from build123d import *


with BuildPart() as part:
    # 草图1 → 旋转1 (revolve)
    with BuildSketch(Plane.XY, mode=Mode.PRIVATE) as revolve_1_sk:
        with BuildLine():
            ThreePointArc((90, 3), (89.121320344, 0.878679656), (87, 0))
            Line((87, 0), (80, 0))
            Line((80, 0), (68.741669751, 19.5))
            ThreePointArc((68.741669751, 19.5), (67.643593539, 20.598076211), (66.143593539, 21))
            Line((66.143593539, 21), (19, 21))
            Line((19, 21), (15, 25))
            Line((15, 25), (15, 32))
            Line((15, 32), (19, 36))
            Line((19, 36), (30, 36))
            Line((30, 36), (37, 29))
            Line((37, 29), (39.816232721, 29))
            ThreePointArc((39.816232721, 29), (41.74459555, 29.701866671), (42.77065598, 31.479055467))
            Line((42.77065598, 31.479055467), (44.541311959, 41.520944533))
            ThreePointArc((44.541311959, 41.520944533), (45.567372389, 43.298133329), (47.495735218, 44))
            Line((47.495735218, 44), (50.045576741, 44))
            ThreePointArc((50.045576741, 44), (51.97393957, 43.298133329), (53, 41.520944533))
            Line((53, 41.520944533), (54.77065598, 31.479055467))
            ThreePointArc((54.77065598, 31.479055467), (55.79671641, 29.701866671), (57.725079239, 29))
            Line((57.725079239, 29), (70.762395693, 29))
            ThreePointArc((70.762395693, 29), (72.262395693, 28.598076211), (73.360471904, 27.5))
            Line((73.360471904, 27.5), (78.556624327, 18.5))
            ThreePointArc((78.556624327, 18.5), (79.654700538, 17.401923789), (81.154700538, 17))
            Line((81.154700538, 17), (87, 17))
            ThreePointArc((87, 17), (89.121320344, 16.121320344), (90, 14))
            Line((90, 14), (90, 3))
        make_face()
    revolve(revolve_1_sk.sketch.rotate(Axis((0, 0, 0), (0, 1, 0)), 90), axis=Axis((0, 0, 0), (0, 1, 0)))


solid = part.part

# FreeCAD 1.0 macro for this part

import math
import FreeCAD as App
import Part
import Sketcher
from FreeCAD import Vector
Q = App.Units.Quantity

doc = App.newDocument("Part")
params = doc.addObject("Spreadsheet::Sheet", "Params")
for row, (alias, value) in enumerate([
    ("sketch1_radius", "3 mm"),
    ("sketch1_width", "11 mm"),
    ("sketch1_width2", "7 mm"),
    ("revolution_angle", "360 deg"),
], start=1):
    params.set(f"A{row}", alias)
    params.set(f"B{row}", "=" + value)
    params.setAlias(f"B{row}", alias)

body = doc.addObject("PartDesign::Body", "Body")

# Sketch on XY plane
sketch1 = body.newObject("Sketcher::SketchObject", "Sketch")
sketch1.AttachmentSupport = (doc.getObject("XY_Plane"), [""])
sketch1.MapMode = "FlatFace"
sketch1.addGeometry(Part.ArcOfCircle(Part.Circle(Vector(87, 3, 0), Vector(0, 0, 1), 3), math.radians(-90), math.radians(0)), False)
sketch1.addGeometry(Part.LineSegment(Vector(90, 3, 0), Vector(90, 14, 0)), False)
sketch1.addGeometry(Part.ArcOfCircle(Part.Circle(Vector(87, 14, 0), Vector(0, 0, 1), 3), math.radians(0), math.radians(90)), False)
sketch1.addGeometry(Part.LineSegment(Vector(87, 17, 0), Vector(81.2, 17, 0)), False)
sketch1.addGeometry(Part.ArcOfCircle(Part.Circle(Vector(81.2, 20, 0), Vector(0, 0, 1), 3), math.radians(-150), math.radians(-90)), False)
sketch1.addGeometry(Part.LineSegment(Vector(78.6, 18.5, 0), Vector(73.4, 27.5, 0)), False)
sketch1.addGeometry(Part.ArcOfCircle(Part.Circle(Vector(70.8, 26, 0), Vector(0, 0, 1), 3), math.radians(30), math.radians(90)), False)
sketch1.addGeometry(Part.LineSegment(Vector(70.8, 29, 0), Vector(57.7, 29, 0)), False)
sketch1.addGeometry(Part.ArcOfCircle(Part.Circle(Vector(57.7, 32, 0), Vector(0, 0, 1), 3), math.radians(-170), math.radians(-90)), False)
sketch1.addGeometry(Part.LineSegment(Vector(54.8, 31.5, 0), Vector(53, 41.5, 0)), False)
sketch1.addGeometry(Part.ArcOfCircle(Part.Circle(Vector(50, 41, 0), Vector(0, 0, 1), 3), math.radians(10), math.radians(90)), False)
sketch1.addGeometry(Part.LineSegment(Vector(50, 44, 0), Vector(47.5, 44, 0)), False)
sketch1.addGeometry(Part.ArcOfCircle(Part.Circle(Vector(47.5, 41, 0), Vector(0, 0, 1), 3), math.radians(90), math.radians(170)), False)
sketch1.addGeometry(Part.LineSegment(Vector(44.5, 41.5, 0), Vector(42.8, 31.5, 0)), False)
sketch1.addGeometry(Part.ArcOfCircle(Part.Circle(Vector(39.8, 32, 0), Vector(0, 0, 1), 3), math.radians(-90), math.radians(-10)), False)
sketch1.addGeometry(Part.LineSegment(Vector(39.8, 29, 0), Vector(37, 29, 0)), False)
sketch1.addGeometry(Part.LineSegment(Vector(37, 29, 0), Vector(30, 36, 0)), False)
sketch1.addGeometry(Part.LineSegment(Vector(30, 36, 0), Vector(19, 36, 0)), False)
sketch1.addGeometry(Part.LineSegment(Vector(19, 36, 0), Vector(15, 32, 0)), False)
sketch1.addGeometry(Part.LineSegment(Vector(15, 32, 0), Vector(15, 25, 0)), False)
sketch1.addGeometry(Part.LineSegment(Vector(15, 25, 0), Vector(19, 21, 0)), False)
sketch1.addGeometry(Part.LineSegment(Vector(19, 21, 0), Vector(66.1, 21, 0)), False)
sketch1.addGeometry(Part.ArcOfCircle(Part.Circle(Vector(66.1, 18, 0), Vector(0, 0, 1), 3), math.radians(30), math.radians(90)), False)
sketch1.addGeometry(Part.LineSegment(Vector(68.7, 19.5, 0), Vector(80, 0, 0)), False)
sketch1.addGeometry(Part.LineSegment(Vector(80, 0, 0), Vector(87, 0, 0)), False)
sketch1.addConstraint(Sketcher.Constraint("Tangent", 0, 2, 1, 1))
sketch1.addConstraint(Sketcher.Constraint("Tangent", 1, 2, 2, 1))
sketch1.addConstraint(Sketcher.Constraint("Tangent", 2, 2, 3, 1))
sketch1.addConstraint(Sketcher.Constraint("Tangent", 3, 2, 4, 2))
sketch1.addConstraint(Sketcher.Constraint("Tangent", 4, 1, 5, 1))
sketch1.addConstraint(Sketcher.Constraint("Tangent", 5, 2, 6, 1))
sketch1.addConstraint(Sketcher.Constraint("Tangent", 6, 2, 7, 1))
sketch1.addConstraint(Sketcher.Constraint("Tangent", 7, 2, 8, 2))
sketch1.addConstraint(Sketcher.Constraint("Tangent", 8, 1, 9, 1))
sketch1.addConstraint(Sketcher.Constraint("Tangent", 9, 2, 10, 1))
sketch1.addConstraint(Sketcher.Constraint("Tangent", 10, 2, 11, 1))
sketch1.addConstraint(Sketcher.Constraint("Tangent", 11, 2, 12, 1))
sketch1.addConstraint(Sketcher.Constraint("Tangent", 12, 2, 13, 1))
sketch1.addConstraint(Sketcher.Constraint("Tangent", 13, 2, 14, 2))
sketch1.addConstraint(Sketcher.Constraint("Tangent", 14, 1, 15, 1))
sketch1.addConstraint(Sketcher.Constraint("Coincident", 15, 2, 16, 1))
sketch1.addConstraint(Sketcher.Constraint("Coincident", 16, 2, 17, 1))
sketch1.addConstraint(Sketcher.Constraint("Coincident", 17, 2, 18, 1))
sketch1.addConstraint(Sketcher.Constraint("Coincident", 18, 2, 19, 1))
sketch1.addConstraint(Sketcher.Constraint("Coincident", 19, 2, 20, 1))
sketch1.addConstraint(Sketcher.Constraint("Coincident", 20, 2, 21, 1))
sketch1.addConstraint(Sketcher.Constraint("Tangent", 21, 2, 22, 2))
sketch1.addConstraint(Sketcher.Constraint("Tangent", 22, 1, 23, 1))
sketch1.addConstraint(Sketcher.Constraint("Coincident", 23, 2, 24, 1))
sketch1.addConstraint(Sketcher.Constraint("Tangent", 24, 2, 0, 1))
sketch1.addConstraint(Sketcher.Constraint("Vertical", 1))
sketch1.addConstraint(Sketcher.Constraint("Horizontal", 3))
sketch1.addConstraint(Sketcher.Constraint("Horizontal", 7))
sketch1.addConstraint(Sketcher.Constraint("Horizontal", 11))
sketch1.addConstraint(Sketcher.Constraint("Horizontal", 15))
sketch1.addConstraint(Sketcher.Constraint("Horizontal", 17))
sketch1.addConstraint(Sketcher.Constraint("Vertical", 19))
sketch1.addConstraint(Sketcher.Constraint("Horizontal", 21))
sketch1.addConstraint(Sketcher.Constraint("Horizontal", 24))
sketch1.addConstraint(Sketcher.Constraint("Equal", 0, 2))
sketch1.addConstraint(Sketcher.Constraint("Equal", 2, 4))
sketch1.addConstraint(Sketcher.Constraint("Equal", 4, 6))
sketch1.addConstraint(Sketcher.Constraint("Equal", 6, 8))
sketch1.addConstraint(Sketcher.Constraint("Equal", 8, 10))
sketch1.addConstraint(Sketcher.Constraint("Equal", 10, 12))
sketch1.addConstraint(Sketcher.Constraint("Equal", 12, 14))
sketch1.addConstraint(Sketcher.Constraint("Equal", 14, 22))
sketch1.addConstraint(Sketcher.Constraint("PointOnObject", 23, 2, -1))
sketch1.addConstraint(Sketcher.Constraint("Perpendicular", 16, 18))
sketch1.addConstraint(Sketcher.Constraint("Perpendicular", 18, 20))
sketch1.addConstraint(Sketcher.Constraint("Parallel", 5, 23))
sketch1.addConstraint(Sketcher.Constraint("Horizontal", 8, 3, 14, 3))
sketch1.addConstraint(Sketcher.Constraint("Horizontal", 9, 2, 12, 2))
sketch1.addConstraint(Sketcher.Constraint("Horizontal", 14, 3, 18, 2))
sketch1.addConstraint(Sketcher.Constraint("Vertical", 17, 2, 20, 2))
sketch1.addConstraint(Sketcher.Constraint("Equal", 17, 1))
sketch1.addConstraint(Sketcher.Constraint("Equal", 24, 19))
sketch1.addConstraint(Sketcher.Constraint("Equal", 18, 20))
sketch1.addConstraint(Sketcher.Constraint("Radius", 0, Q("3 mm")))
sketch1.addConstraint(Sketcher.Constraint("DistanceX", 17, 2, 17, 1, Q("11 mm")))
sketch1.addConstraint(Sketcher.Constraint("DistanceX", 24, 1, 24, 2, Q("7 mm")))
sketch1.addConstraint(Sketcher.Constraint("Angle", 5, Q("120 deg")))
sketch1.addConstraint(Sketcher.Constraint("Angle", 9, Q("100 deg")))
sketch1.addConstraint(Sketcher.Constraint("DistanceX", -1, 1, 0, 3, Q("87 mm")))
sketch1.addConstraint(Sketcher.Constraint("DistanceY", -1, 1, 6, 3, Q("26 mm")))
sketch1.addConstraint(Sketcher.Constraint("DistanceY", -1, 1, 10, 3, Q("41 mm")))
sketch1.addConstraint(Sketcher.Constraint("DistanceY", -1, 1, 22, 3, Q("18 mm")))
sketch1.addConstraint(Sketcher.Constraint("DistanceX", -1, 1, 9, 2, Q("53 mm")))
sketch1.addConstraint(Sketcher.Constraint("DistanceX", -1, 1, 15, 2, Q("37 mm")))
sketch1.addConstraint(Sketcher.Constraint("DistanceX", 13, 2, 8, 1, Q("12 mm")))
sketch1.addConstraint(Sketcher.Constraint("DistanceX", 3, 2, 3, 1, Q("5.845299 mm")))
sketch1.setExpression("Constraints[53]", "Params.sketch1_radius")
sketch1.setExpression("Constraints[54]", "Params.sketch1_width")
sketch1.setExpression("Constraints[55]", "Params.sketch1_width2")
revolution = body.newObject("PartDesign::Revolution", "Revolution")
revolution.Profile = sketch1
revolution.ReferenceAxis = (sketch1, ["V_Axis"])
revolution.setExpression("Angle", "Params.revolution_angle")

doc.recompute()
